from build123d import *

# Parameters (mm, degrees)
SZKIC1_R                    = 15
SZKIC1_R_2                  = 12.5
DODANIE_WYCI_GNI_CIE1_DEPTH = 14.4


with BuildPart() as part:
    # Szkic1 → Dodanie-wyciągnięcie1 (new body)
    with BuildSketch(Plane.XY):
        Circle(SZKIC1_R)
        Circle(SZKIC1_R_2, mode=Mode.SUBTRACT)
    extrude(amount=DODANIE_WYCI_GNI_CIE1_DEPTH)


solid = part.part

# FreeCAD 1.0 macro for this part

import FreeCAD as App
import Part
import Sketcher

doc = App.newDocument("Part")
body = doc.addObject("PartDesign::Body", "Body")

sketch1 = body.newObject("Sketcher::SketchObject", "Sketch")
sketch1.AttachmentSupport = (doc.getObject("XY_Plane"), [""])
sketch1.MapMode = "FlatFace"
sketch1.addGeometry([
    Part.Circle(App.Vector(0, 0, 0), App.Vector(0, 0, 1), 15),
    Part.Circle(App.Vector(0, 0, 0), App.Vector(0, 0, 1), 12),
], False)
sketch1.addConstraint([
    Sketcher.Constraint("Coincident", 0, 3, -1, 1),
    Sketcher.Constraint("Coincident", 1, 3, -1, 1),
    Sketcher.Constraint("Diameter", 0, 30.0),
    Sketcher.Constraint("Diameter", 1, 25.0),
])
pad1 = body.newObject("PartDesign::Pad", "Pad")
pad1.Profile = sketch1
pad1.Length = 14.4

doc.recompute()
